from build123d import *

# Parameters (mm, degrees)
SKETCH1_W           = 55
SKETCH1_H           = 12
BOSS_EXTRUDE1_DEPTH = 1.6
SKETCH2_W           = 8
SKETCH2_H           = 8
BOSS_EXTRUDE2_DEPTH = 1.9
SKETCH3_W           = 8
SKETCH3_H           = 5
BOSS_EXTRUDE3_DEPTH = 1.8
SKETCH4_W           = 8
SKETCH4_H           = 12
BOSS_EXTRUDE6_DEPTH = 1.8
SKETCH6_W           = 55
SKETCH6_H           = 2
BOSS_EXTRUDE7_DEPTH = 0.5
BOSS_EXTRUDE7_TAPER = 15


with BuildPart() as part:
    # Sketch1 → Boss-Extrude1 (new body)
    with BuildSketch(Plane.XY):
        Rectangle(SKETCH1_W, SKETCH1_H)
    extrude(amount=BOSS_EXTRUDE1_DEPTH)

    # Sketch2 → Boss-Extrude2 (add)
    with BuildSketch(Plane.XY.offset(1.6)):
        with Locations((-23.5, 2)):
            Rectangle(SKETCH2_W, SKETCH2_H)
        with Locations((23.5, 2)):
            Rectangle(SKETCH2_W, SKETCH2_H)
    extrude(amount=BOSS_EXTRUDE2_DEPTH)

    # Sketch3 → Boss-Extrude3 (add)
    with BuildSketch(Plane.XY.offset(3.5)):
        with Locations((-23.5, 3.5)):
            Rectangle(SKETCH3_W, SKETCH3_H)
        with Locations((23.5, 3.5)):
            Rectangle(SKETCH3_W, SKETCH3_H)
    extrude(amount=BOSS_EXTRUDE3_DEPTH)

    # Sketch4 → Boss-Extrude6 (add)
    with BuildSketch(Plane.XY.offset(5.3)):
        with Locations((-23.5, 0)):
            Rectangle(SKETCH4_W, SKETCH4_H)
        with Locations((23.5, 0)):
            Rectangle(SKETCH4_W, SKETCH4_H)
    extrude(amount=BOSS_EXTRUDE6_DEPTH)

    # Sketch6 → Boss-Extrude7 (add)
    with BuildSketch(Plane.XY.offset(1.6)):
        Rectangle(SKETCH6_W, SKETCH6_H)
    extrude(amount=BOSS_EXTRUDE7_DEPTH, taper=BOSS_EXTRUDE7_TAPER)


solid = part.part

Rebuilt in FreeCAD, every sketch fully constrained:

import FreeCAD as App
import Part
import Sketcher

doc = App.newDocument("Part")
params = doc.addObject("Spreadsheet::Sheet", "Params")
for row, (alias, value) in enumerate([
    ("sketch1_width", "55 mm"),
    ("sketch1_height", "12 mm"),
    ("pad1_length", "1.6 mm"),
    ("sketch2_width", "8 mm"),
    ("pad2_length", "1.9 mm"),
    ("sketch3_width", "8 mm"),
    ("sketch3_height", "5 mm"),
    ("pad3_length", "1.8 mm"),
    ("sketch4_width", "8 mm"),
    ("sketch4_height", "12 mm"),
    ("pad4_length", "1.8 mm"),
    ("sketch5_width", "55 mm"),
    ("sketch5_height", "2 mm"),
    ("pad5_length", "0.5 mm"),
    ("pad5_taper", "-15 deg"),
], start=1):
    params.set(f"A{row}", alias)
    params.set(f"B{row}", "=" + value)
    params.setAlias(f"B{row}", alias)

body = doc.addObject("PartDesign::Body", "Body")

# Sketch on XY plane
sketch1 = doc.addObject("Sketcher::SketchObject", "Sketch")
body.addObject(sketch1)
sketch1.AttachmentSupport = (doc.XY_Plane, [""])
sketch1.MapMode = "FlatFace"
sketch1.addGeometry(Part.LineSegment(App.Vector(-27.5, 6, 0), App.Vector(-27.5, -6, 0)), False)
sketch1.addGeometry(Part.LineSegment(App.Vector(-27.5, -6, 0), App.Vector(27.5, -6, 0)), False)
sketch1.addGeometry(Part.LineSegment(App.Vector(27.5, -6, 0), App.Vector(27.5, 6, 0)), False)
sketch1.addGeometry(Part.LineSegment(App.Vector(27.5, 6, 0), App.Vector(-27.5, 6, 0)), False)
sketch1.addConstraint(Sketcher.Constraint("Coincident", 0, 2, 1, 1))
sketch1.addConstraint(Sketcher.Constraint("Coincident", 1, 2, 2, 1))
sketch1.addConstraint(Sketcher.Constraint("Coincident", 2, 2, 3, 1))
sketch1.addConstraint(Sketcher.Constraint("Coincident", 3, 2, 0, 1))
sketch1.addConstraint(Sketcher.Constraint("Vertical", 0))
sketch1.addConstraint(Sketcher.Constraint("Horizontal", 1))
sketch1.addConstraint(Sketcher.Constraint("Vertical", 2))
sketch1.addConstraint(Sketcher.Constraint("Horizontal", 3))
sketch1.addConstraint(Sketcher.Constraint("Symmetric", 0, 2, 2, 2, -1, 1))
sketch1.addConstraint(Sketcher.Constraint("DistanceX", 1, 1, 1, 2, 55.0))
sketch1.addConstraint(Sketcher.Constraint("DistanceY", 0, 2, 0, 1, 12.0))
sketch1.setExpression("Constraints[9]", "Params.sketch1_width")
sketch1.setExpression("Constraints[10]", "Params.sketch1_height")
pad1 = doc.addObject("PartDesign::Pad", "Pad")
body.addObject(pad1)
pad1.Profile = sketch1
pad1.setExpression("Length", "Params.pad1_length")

# Sketch on XY plane
sketch2 = doc.addObject("Sketcher::SketchObject", "Sketch001")
body.addObject(sketch2)
sketch2.AttachmentSupport = (doc.XY_Plane, [""])
sketch2.MapMode = "FlatFace"
sketch2.AttachmentOffset = App.Placement(App.Vector(0, 0, 1.6), App.Rotation())
sketch2.addGeometry(Part.LineSegment(App.Vector(-27.5, 6, 0), App.Vector(-27.5, -2, 0)), False)
sketch2.addGeometry(Part.LineSegment(App.Vector(-27.5, -2, 0), App.Vector(-19.5, -2, 0)), False)
sketch2.addGeometry(Part.LineSegment(App.Vector(-19.5, -2, 0), App.Vector(-19.5, 6, 0)), False)
sketch2.addGeometry(Part.LineSegment(App.Vector(-19.5, 6, 0), App.Vector(-27.5, 6, 0)), False)
sketch2.addGeometry(Part.LineSegment(App.Vector(19.5, 6, 0), App.Vector(19.5, -2, 0)), False)
sketch2.addGeometry(Part.LineSegment(App.Vector(19.5, -2, 0), App.Vector(27.5, -2, 0)), False)
sketch2.addGeometry(Part.LineSegment(App.Vector(27.5, -2, 0), App.Vector(27.5, 6, 0)), False)
sketch2.addGeometry(Part.LineSegment(App.Vector(27.5, 6, 0), App.Vector(19.5, 6, 0)), False)
sketch2.addConstraint(Sketcher.Constraint("Coincident", 0, 2, 1, 1))
sketch2.addConstraint(Sketcher.Constraint("Coincident", 1, 2, 2, 1))
sketch2.addConstraint(Sketcher.Constraint("Coincident", 2, 2, 3, 1))
sketch2.addConstraint(Sketcher.Constraint("Coincident", 3, 2, 0, 1))
sketch2.addConstraint(Sketcher.Constraint("Coincident", 4, 2, 5, 1))
sketch2.addConstraint(Sketcher.Constraint("Coincident", 5, 2, 6, 1))
sketch2.addConstraint(Sketcher.Constraint("Coincident", 6, 2, 7, 1))
sketch2.addConstraint(Sketcher.Constraint("Coincident", 7, 2, 4, 1))
sketch2.addConstraint(Sketcher.Constraint("Vertical", 0))
sketch2.addConstraint(Sketcher.Constraint("Horizontal", 1))
sketch2.addConstraint(Sketcher.Constraint("Vertical", 2))
sketch2.addConstraint(Sketcher.Constraint("Horizontal", 3))
sketch2.addConstraint(Sketcher.Constraint("Vertical", 4))
sketch2.addConstraint(Sketcher.Constraint("Horizontal", 5))
sketch2.addConstraint(Sketcher.Constraint("Vertical", 6))
sketch2.addConstraint(Sketcher.Constraint("Horizontal", 7))
sketch2.addConstraint(Sketcher.Constraint("Symmetric", 1, 2, 4, 2, -2))
sketch2.addConstraint(Sketcher.Constraint("Symmetric", 3, 2, 6, 2, -2))
sketch2.addConstraint(Sketcher.Constraint("Equal", 7, 0))
sketch2.addConstraint(Sketcher.Constraint("DistanceX", 1, 1, 1, 2, 8.0))
sketch2.addConstraint(Sketcher.Constraint("DistanceY", 0, 2, -1, 1, 2.0))
sketch2.addConstraint(Sketcher.Constraint("DistanceX", 1, 2, 4, 2, 39.0))
sketch2.setExpression("Constraints[19]", "Params.sketch2_width")
pad2 = doc.addObject("PartDesign::Pad", "Pad001")
body.addObject(pad2)
pad2.Profile = sketch2
pad2.setExpression("Length", "Params.pad2_length")

# Sketch on XY plane
sketch3 = doc.addObject("Sketcher::SketchObject", "Sketch002")
body.addObject(sketch3)
sketch3.AttachmentSupport = (doc.XY_Plane, [""])
sketch3.MapMode = "FlatFace"
sketch3.AttachmentOffset = App.Placement(App.Vector(0, 0, 3.5), App.Rotation())
sketch3.addGeometry(Part.LineSegment(App.Vector(-27.5, 6, 0), App.Vector(-27.5, 1, 0)), False)
sketch3.addGeometry(Part.LineSegment(App.Vector(-27.5, 1, 0), App.Vector(-19.5, 1, 0)), False)
sketch3.addGeometry(Part.LineSegment(App.Vector(-19.5, 1, 0), App.Vector(-19.5, 6, 0)), False)
sketch3.addGeometry(Part.LineSegment(App.Vector(-19.5, 6, 0), App.Vector(-27.5, 6, 0)), False)
sketch3.addGeometry(Part.LineSegment(App.Vector(19.5, 6, 0), App.Vector(19.5, 1, 0)), False)
sketch3.addGeometry(Part.LineSegment(App.Vector(19.5, 1, 0), App.Vector(27.5, 1, 0)), False)
sketch3.addGeometry(Part.LineSegment(App.Vector(27.5, 1, 0), App.Vector(27.5, 6, 0)), False)
sketch3.addGeometry(Part.LineSegment(App.Vector(27.5, 6, 0), App.Vector(19.5, 6, 0)), False)
sketch3.addConstraint(Sketcher.Constraint("Coincident", 0, 2, 1, 1))
sketch3.addConstraint(Sketcher.Constraint("Coincident", 1, 2, 2, 1))
sketch3.addConstraint(Sketcher.Constraint("Coincident", 2, 2, 3, 1))
sketch3.addConstraint(Sketcher.Constraint("Coincident", 3, 2, 0, 1))
sketch3.addConstraint(Sketcher.Constraint("Coincident", 4, 2, 5, 1))
sketch3.addConstraint(Sketcher.Constraint("Coincident", 5, 2, 6, 1))
sketch3.addConstraint(Sketcher.Constraint("Coincident", 6, 2, 7, 1))
sketch3.addConstraint(Sketcher.Constraint("Coincident", 7, 2, 4, 1))
sketch3.addConstraint(Sketcher.Constraint("Vertical", 0))
sketch3.addConstraint(Sketcher.Constraint("Horizontal", 1))
sketch3.addConstraint(Sketcher.Constraint("Vertical", 2))
sketch3.addConstraint(Sketcher.Constraint("Horizontal", 3))
sketch3.addConstraint(Sketcher.Constraint("Vertical", 4))
sketch3.addConstraint(Sketcher.Constraint("Horizontal", 5))
sketch3.addConstraint(Sketcher.Constraint("Vertical", 6))
sketch3.addConstraint(Sketcher.Constraint("Horizontal", 7))
sketch3.addConstraint(Sketcher.Constraint("Symmetric", 1, 2, 4, 2, -2))
sketch3.addConstraint(Sketcher.Constraint("Symmetric", 3, 2, 6, 2, -2))
sketch3.addConstraint(Sketcher.Constraint("DistanceX", 1, 1, 1, 2, 8.0))
sketch3.addConstraint(Sketcher.Constraint("DistanceY", 0, 2, 0, 1, 5.0))
sketch3.addConstraint(Sketcher.Constraint("DistanceY", -1, 1, 0, 2, 1.0))
sketch3.addConstraint(Sketcher.Constraint("DistanceX", 1, 2, 4, 2, 39.0))
sketch3.setExpression("Constraints[18]", "Params.sketch3_width")
sketch3.setExpression("Constraints[19]", "Params.sketch3_height")
pad3 = doc.addObject("PartDesign::Pad", "Pad002")
body.addObject(pad3)
pad3.Profile = sketch3
pad3.setExpression("Length", "Params.pad3_length")

# Sketch on XY plane
sketch4 = doc.addObject("Sketcher::SketchObject", "Sketch003")
body.addObject(sketch4)
sketch4.AttachmentSupport = (doc.XY_Plane, [""])
sketch4.MapMode = "FlatFace"
sketch4.AttachmentOffset = App.Placement(App.Vector(0, 0, 5.3), App.Rotation())
sketch4.addGeometry(Part.LineSegment(App.Vector(-27.5, 6, 0), App.Vector(-27.5, -6, 0)), False)
sketch4.addGeometry(Part.LineSegment(App.Vector(-27.5, -6, 0), App.Vector(-19.5, -6, 0)), False)
sketch4.addGeometry(Part.LineSegment(App.Vector(-19.5, -6, 0), App.Vector(-19.5, 6, 0)), False)
sketch4.addGeometry(Part.LineSegment(App.Vector(-19.5, 6, 0), App.Vector(-27.5, 6, 0)), False)
sketch4.addGeometry(Part.LineSegment(App.Vector(19.5, 6, 0), App.Vector(19.5, -6, 0)), False)
sketch4.addGeometry(Part.LineSegment(App.Vector(19.5, -6, 0), App.Vector(27.5, -6, 0)), False)
sketch4.addGeometry(Part.LineSegment(App.Vector(27.5, -6, 0), App.Vector(27.5, 6, 0)), False)
sketch4.addGeometry(Part.LineSegment(App.Vector(27.5, 6, 0), App.Vector(19.5, 6, 0)), False)
sketch4.addConstraint(Sketcher.Constraint("Coincident", 0, 2, 1, 1))
sketch4.addConstraint(Sketcher.Constraint("Coincident", 1, 2, 2, 1))
sketch4.addConstraint(Sketcher.Constraint("Coincident", 2, 2, 3, 1))
sketch4.addConstraint(Sketcher.Constraint("Coincident", 3, 2, 0, 1))
sketch4.addConstraint(Sketcher.Constraint("Coincident", 4, 2, 5, 1))
sketch4.addConstraint(Sketcher.Constraint("Coincident", 5, 2, 6, 1))
sketch4.addConstraint(Sketcher.Constraint("Coincident", 6, 2, 7, 1))
sketch4.addConstraint(Sketcher.Constraint("Coincident", 7, 2, 4, 1))
sketch4.addConstraint(Sketcher.Constraint("Vertical", 0))
sketch4.addConstraint(Sketcher.Constraint("Horizontal", 1))
sketch4.addConstraint(Sketcher.Constraint("Vertical", 2))
sketch4.addConstraint(Sketcher.Constraint("Horizontal", 3))
sketch4.addConstraint(Sketcher.Constraint("Vertical", 4))
sketch4.addConstraint(Sketcher.Constraint("Horizontal", 5))
sketch4.addConstraint(Sketcher.Constraint("Vertical", 6))
sketch4.addConstraint(Sketcher.Constraint("Horizontal", 7))
sketch4.addConstraint(Sketcher.Constraint("Symmetric", 2, 2, 4, 2, -1, 1))
sketch4.addConstraint(Sketcher.Constraint("Symmetric", 0, 2, 6, 2, -1, 1))
sketch4.addConstraint(Sketcher.Constraint("Horizontal", 1, 2, 4, 2))
sketch4.addConstraint(Sketcher.Constraint("DistanceX", 1, 1, 1, 2, 8.0))
sketch4.addConstraint(Sketcher.Constraint("DistanceY", 0, 2, 0, 1, 12.0))
sketch4.addConstraint(Sketcher.Constraint("DistanceX", 1, 2, 4, 2, 39.0))
sketch4.setExpression("Constraints[19]", "Params.sketch4_width")
sketch4.setExpression("Constraints[20]", "Params.sketch4_height")
pad4 = doc.addObject("PartDesign::Pad", "Pad003")
body.addObject(pad4)
pad4.Profile = sketch4
pad4.setExpression("Length", "Params.pad4_length")

# Sketch on XY plane
sketch5 = doc.addObject("Sketcher::SketchObject", "Sketch004")
body.addObject(sketch5)
sketch5.AttachmentSupport = (doc.XY_Plane, [""])
sketch5.MapMode = "FlatFace"
sketch5.AttachmentOffset = App.Placement(App.Vector(0, 0, 1.6), App.Rotation())
sketch5.addGeometry(Part.LineSegment(App.Vector(-27.5, 1, 0), App.Vector(-27.5, -1, 0)), False)
sketch5.addGeometry(Part.LineSegment(App.Vector(-27.5, -1, 0), App.Vector(27.5, -1, 0)), False)
sketch5.addGeometry(Part.LineSegment(App.Vector(27.5, -1, 0), App.Vector(27.5, 1, 0)), False)
sketch5.addGeometry(Part.LineSegment(App.Vector(27.5, 1, 0), App.Vector(-27.5, 1, 0)), False)
sketch5.addConstraint(Sketcher.Constraint("Coincident", 0, 2, 1, 1))
sketch5.addConstraint(Sketcher.Constraint("Coincident", 1, 2, 2, 1))
sketch5.addConstraint(Sketcher.Constraint("Coincident", 2, 2, 3, 1))
sketch5.addConstraint(Sketcher.Constraint("Coincident", 3, 2, 0, 1))
sketch5.addConstraint(Sketcher.Constraint("Vertical", 0))
sketch5.addConstraint(Sketcher.Constraint("Horizontal", 1))
sketch5.addConstraint(Sketcher.Constraint("Vertical", 2))
sketch5.addConstraint(Sketcher.Constraint("Horizontal", 3))
sketch5.addConstraint(Sketcher.Constraint("Symmetric", 0, 2, 2, 2, -1, 1))
sketch5.addConstraint(Sketcher.Constraint("DistanceX", 1, 1, 1, 2, 55.0))
sketch5.addConstraint(Sketcher.Constraint("DistanceY", 0, 2, 0, 1, 2.0))
sketch5.setExpression("Constraints[9]", "Params.sketch5_width")
sketch5.setExpression("Constraints[10]", "Params.sketch5_height")
pad5 = doc.addObject("PartDesign::Pad", "Pad004")
body.addObject(pad5)
pad5.Profile = sketch5
pad5.setExpression("Length", "Params.pad5_length")
pad5.setExpression("TaperAngle", "Params.pad5_taper")

doc.recompute()
